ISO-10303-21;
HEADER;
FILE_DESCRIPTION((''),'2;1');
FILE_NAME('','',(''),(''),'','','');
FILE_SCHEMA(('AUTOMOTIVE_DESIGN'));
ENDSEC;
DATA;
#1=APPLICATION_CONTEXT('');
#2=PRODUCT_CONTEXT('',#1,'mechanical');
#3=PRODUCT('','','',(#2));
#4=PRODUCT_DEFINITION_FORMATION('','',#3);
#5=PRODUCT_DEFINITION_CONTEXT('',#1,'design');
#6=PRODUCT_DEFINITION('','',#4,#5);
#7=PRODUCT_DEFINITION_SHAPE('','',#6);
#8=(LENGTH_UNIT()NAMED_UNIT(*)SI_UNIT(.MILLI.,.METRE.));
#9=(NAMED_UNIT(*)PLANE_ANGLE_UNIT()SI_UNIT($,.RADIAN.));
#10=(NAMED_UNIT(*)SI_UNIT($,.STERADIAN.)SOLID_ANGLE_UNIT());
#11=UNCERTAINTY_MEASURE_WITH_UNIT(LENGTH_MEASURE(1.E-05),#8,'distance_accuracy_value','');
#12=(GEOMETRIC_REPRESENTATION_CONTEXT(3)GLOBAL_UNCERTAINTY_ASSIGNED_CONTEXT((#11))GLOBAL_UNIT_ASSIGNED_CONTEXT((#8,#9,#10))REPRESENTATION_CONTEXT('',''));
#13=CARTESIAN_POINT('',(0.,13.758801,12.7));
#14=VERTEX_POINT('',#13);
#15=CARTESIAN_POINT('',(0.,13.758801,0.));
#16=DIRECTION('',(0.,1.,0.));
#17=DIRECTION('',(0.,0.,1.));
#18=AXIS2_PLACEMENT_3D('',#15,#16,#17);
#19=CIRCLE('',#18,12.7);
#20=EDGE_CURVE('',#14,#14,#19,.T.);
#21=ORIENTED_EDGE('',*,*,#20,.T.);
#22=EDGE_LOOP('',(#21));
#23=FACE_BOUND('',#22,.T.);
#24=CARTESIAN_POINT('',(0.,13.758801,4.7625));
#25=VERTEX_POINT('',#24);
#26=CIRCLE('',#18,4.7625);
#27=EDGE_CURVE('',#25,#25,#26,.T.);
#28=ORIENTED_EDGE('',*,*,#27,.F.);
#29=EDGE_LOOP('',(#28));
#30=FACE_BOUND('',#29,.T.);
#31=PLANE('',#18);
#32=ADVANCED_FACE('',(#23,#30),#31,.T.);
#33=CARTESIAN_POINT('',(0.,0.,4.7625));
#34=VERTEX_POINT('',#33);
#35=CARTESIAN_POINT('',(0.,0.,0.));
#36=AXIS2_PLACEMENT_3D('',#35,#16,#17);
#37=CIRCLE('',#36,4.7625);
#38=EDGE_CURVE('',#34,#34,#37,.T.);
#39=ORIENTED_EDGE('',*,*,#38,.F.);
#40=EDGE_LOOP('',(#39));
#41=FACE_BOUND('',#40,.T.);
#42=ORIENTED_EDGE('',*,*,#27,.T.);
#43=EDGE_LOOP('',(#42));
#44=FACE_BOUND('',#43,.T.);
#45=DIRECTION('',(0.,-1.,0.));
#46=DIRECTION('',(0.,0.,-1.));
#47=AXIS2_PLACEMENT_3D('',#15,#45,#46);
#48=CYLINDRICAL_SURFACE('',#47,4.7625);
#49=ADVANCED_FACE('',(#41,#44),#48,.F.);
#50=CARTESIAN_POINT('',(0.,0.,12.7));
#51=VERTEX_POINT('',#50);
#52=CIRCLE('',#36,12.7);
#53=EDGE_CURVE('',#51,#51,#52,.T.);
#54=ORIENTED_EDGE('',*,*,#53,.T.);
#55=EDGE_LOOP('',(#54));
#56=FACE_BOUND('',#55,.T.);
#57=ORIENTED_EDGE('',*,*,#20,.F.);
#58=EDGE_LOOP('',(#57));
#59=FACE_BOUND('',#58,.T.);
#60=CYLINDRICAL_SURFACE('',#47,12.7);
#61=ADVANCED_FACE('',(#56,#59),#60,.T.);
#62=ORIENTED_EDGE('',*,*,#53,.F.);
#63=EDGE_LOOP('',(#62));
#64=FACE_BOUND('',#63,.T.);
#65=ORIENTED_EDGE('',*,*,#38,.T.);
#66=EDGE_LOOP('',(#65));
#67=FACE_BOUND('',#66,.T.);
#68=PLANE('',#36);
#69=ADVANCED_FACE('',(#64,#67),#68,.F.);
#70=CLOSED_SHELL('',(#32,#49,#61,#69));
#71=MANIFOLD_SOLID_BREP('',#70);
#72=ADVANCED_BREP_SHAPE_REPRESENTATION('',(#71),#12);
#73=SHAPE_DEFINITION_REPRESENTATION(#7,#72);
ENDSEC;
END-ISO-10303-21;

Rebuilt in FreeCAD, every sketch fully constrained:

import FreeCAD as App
import Part
import Sketcher
Q = App.Units.Quantity

doc = App.newDocument("Part")
body = doc.addObject("PartDesign::Body", "Body")

# Sketch on XZ plane
sketch1 = body.newObject("Sketcher::SketchObject", "Sketch")
sketch1.AttachmentSupport = (doc.getObject("XZ_Plane"), [""])
sketch1.MapMode = "FlatFace"
sketch1.addGeometry(Part.Circle(App.Vector(0, 0, 0), App.Vector(0, 0, 1), 12.7), False)
sketch1.addGeometry(Part.Circle(App.Vector(0, 0, 0), App.Vector(0, 0, 1), 4.7625), False)
sketch1.addConstraint(Sketcher.Constraint("Coincident", 0, 3, -1, 1))
sketch1.addConstraint(Sketcher.Constraint("Coincident", 1, 3, -1, 1))
sketch1.addConstraint(Sketcher.Constraint("Diameter", 0, Q("1 in")))
sketch1.addConstraint(Sketcher.Constraint("Diameter", 1, Q("0.375 in")))
pad1 = body.newObject("PartDesign::Pad", "Pad")
pad1.Profile = sketch1
pad1.Length = 13.758801
pad1.Reversed = True

doc.recompute()
